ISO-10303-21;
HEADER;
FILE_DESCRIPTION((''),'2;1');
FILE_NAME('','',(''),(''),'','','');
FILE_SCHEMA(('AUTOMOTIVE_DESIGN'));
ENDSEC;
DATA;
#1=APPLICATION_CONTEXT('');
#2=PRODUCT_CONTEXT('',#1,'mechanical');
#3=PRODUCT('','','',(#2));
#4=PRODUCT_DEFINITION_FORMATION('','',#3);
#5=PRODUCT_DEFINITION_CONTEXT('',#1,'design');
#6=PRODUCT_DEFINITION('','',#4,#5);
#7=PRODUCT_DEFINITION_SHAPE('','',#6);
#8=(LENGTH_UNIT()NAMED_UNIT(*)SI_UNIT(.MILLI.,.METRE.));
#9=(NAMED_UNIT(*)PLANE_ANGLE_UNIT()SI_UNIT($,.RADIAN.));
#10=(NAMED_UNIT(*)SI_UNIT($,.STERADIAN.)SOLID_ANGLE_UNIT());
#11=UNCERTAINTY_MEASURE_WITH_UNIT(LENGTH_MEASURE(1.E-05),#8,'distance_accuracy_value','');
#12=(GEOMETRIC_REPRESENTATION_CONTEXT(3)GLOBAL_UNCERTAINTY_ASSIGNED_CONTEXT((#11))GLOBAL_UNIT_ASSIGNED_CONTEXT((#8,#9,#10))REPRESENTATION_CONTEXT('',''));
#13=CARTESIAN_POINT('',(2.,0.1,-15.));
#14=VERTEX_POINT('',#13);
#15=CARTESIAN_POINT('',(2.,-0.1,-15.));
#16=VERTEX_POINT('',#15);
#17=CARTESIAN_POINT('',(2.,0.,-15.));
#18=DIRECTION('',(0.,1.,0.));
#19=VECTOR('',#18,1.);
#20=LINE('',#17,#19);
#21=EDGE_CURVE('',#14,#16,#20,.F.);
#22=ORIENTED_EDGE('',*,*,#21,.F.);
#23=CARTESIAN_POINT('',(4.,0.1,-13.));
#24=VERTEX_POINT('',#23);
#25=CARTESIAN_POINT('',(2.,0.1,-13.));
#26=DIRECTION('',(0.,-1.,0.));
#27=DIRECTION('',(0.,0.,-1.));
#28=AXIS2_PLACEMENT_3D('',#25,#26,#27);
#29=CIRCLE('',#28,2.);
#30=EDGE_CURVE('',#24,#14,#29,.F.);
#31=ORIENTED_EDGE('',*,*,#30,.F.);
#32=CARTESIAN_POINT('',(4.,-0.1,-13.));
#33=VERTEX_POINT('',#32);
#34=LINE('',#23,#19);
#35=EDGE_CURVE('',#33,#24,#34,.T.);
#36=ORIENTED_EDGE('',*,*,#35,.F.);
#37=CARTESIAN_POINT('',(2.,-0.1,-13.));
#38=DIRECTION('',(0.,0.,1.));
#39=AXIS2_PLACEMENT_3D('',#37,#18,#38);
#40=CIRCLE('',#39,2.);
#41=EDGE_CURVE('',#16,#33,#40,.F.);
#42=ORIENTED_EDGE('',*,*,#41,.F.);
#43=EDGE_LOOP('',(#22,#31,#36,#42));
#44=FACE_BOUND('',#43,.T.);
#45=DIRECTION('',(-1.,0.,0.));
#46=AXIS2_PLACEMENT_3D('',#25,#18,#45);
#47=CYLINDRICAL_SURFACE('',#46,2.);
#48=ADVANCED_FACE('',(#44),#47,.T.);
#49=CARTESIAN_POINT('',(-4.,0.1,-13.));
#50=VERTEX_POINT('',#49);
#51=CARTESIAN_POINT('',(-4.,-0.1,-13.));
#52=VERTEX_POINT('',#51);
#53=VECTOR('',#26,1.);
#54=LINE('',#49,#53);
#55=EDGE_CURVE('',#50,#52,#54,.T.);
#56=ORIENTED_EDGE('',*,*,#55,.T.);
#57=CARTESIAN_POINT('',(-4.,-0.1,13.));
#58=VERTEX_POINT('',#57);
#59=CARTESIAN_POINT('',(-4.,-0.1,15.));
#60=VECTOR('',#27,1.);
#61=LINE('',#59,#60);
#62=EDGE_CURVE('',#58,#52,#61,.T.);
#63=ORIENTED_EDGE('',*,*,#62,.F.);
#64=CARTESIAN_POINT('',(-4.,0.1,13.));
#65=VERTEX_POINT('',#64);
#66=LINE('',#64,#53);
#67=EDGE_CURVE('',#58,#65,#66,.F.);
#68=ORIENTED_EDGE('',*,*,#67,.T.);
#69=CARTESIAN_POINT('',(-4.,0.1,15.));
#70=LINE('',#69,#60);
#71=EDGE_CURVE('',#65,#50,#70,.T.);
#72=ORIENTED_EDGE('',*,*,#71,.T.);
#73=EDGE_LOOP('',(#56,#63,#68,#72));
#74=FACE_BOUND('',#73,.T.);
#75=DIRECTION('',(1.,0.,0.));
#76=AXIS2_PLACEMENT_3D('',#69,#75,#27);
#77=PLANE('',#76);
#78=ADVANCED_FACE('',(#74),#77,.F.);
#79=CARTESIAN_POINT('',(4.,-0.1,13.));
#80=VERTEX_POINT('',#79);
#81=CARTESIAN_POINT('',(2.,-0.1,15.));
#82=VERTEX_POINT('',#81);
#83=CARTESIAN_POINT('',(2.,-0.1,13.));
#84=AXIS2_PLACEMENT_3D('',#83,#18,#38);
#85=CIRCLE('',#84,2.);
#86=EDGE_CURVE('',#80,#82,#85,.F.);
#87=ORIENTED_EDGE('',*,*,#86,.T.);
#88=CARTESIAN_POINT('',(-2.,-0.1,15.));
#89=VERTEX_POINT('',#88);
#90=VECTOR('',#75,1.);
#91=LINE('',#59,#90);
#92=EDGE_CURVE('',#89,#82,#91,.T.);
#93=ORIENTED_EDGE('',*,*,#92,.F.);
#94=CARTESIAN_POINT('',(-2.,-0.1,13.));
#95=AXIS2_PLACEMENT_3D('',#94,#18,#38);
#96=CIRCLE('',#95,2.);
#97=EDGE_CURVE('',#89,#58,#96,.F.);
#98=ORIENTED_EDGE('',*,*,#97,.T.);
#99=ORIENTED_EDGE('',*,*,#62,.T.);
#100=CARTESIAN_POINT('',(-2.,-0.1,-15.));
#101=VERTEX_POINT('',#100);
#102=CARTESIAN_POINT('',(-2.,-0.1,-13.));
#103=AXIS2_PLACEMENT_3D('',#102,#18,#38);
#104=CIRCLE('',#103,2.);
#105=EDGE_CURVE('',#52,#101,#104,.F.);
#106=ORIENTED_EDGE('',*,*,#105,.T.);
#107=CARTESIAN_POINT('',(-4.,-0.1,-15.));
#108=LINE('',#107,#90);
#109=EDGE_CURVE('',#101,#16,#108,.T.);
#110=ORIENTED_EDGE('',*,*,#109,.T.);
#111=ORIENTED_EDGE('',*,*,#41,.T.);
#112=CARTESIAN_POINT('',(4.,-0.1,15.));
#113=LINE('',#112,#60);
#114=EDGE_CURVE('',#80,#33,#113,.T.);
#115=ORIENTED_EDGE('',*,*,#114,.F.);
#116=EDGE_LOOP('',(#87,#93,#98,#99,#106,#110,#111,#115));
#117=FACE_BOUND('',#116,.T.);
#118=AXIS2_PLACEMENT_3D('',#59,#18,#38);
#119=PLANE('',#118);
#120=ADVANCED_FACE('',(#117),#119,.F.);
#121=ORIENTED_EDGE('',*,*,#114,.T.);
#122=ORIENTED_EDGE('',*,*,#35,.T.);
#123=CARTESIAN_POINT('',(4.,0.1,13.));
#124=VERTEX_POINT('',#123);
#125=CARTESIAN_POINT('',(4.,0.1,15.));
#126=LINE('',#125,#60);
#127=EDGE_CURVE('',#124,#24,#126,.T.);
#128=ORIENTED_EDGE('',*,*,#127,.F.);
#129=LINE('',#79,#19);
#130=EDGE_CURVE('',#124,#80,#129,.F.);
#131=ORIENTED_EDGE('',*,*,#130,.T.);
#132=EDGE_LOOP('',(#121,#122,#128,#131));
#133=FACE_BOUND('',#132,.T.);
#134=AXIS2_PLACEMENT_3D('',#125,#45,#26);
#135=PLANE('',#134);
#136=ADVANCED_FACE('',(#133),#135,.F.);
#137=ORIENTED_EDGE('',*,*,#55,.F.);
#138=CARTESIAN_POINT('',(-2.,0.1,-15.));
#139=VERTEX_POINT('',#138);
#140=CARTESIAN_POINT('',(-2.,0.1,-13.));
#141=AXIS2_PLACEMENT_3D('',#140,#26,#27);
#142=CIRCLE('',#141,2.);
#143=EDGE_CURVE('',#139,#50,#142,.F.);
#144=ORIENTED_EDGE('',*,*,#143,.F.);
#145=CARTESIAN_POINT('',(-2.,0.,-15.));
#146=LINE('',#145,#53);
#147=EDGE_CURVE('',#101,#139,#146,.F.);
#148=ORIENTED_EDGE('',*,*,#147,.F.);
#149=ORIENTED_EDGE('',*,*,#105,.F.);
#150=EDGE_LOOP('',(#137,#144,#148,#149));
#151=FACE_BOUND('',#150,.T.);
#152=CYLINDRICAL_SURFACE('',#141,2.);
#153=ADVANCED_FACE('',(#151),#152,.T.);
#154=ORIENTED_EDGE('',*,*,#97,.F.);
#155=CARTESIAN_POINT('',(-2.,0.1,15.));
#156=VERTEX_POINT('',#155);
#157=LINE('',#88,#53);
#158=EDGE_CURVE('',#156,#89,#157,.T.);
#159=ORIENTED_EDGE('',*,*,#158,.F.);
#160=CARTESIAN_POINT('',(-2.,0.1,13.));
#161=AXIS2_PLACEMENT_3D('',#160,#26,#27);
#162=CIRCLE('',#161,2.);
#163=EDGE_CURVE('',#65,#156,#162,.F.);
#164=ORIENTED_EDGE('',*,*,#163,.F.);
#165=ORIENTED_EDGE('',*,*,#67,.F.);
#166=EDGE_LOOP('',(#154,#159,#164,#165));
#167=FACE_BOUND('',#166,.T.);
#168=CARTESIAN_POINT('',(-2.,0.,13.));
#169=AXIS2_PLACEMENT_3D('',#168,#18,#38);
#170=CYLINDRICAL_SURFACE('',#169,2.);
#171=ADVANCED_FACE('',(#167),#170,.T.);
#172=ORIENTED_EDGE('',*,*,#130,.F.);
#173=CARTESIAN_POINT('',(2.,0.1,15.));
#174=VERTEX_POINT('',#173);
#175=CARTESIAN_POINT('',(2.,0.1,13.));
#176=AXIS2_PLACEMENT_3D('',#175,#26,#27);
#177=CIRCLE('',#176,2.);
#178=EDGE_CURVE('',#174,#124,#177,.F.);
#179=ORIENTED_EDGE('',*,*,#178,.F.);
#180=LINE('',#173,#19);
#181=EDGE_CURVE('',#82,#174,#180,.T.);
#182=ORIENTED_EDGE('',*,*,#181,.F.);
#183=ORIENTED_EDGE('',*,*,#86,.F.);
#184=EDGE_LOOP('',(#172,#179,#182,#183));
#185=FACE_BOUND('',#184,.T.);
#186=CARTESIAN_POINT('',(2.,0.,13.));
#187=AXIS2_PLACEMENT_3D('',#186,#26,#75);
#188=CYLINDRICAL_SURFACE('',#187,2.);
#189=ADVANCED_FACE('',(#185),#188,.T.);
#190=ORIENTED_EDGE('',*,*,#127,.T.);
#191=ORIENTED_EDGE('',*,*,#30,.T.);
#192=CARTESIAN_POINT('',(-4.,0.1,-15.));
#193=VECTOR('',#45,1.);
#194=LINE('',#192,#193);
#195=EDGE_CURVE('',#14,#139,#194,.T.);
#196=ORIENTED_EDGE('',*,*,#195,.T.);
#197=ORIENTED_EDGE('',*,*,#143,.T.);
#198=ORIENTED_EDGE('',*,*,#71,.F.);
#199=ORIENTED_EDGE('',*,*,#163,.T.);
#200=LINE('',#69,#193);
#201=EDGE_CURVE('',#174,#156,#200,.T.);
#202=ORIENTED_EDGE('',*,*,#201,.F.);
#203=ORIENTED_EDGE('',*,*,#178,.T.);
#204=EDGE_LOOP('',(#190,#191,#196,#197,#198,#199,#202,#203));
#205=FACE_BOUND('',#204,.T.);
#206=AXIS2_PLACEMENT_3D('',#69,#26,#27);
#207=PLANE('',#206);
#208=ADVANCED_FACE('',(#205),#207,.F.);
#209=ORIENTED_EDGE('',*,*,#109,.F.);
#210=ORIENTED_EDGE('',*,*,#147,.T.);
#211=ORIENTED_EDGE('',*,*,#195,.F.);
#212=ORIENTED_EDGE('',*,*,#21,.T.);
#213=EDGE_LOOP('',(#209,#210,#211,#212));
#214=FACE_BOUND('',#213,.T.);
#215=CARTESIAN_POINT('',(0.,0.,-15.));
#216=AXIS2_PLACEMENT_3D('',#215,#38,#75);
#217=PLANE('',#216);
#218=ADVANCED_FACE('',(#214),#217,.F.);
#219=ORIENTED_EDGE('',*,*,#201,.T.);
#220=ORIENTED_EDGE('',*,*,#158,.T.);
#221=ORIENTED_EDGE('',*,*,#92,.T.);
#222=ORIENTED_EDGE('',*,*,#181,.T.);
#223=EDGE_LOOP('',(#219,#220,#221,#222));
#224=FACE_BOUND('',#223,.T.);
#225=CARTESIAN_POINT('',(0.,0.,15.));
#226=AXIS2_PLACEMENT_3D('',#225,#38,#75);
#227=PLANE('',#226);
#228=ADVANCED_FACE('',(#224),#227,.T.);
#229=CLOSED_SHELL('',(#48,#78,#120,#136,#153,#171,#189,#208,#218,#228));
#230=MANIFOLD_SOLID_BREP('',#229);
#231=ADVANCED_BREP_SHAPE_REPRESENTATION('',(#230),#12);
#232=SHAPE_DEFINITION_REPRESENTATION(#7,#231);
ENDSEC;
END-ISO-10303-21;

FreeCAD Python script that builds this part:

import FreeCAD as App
import Part
import Sketcher
from FreeCAD import Vector


def edges_at(feature, points):
    """Names of the edges that pass closest to the given points."""
    edges = feature.Shape.Edges
    near = lambda p: min(range(len(edges)), key=lambda i: edges[i].distToShape(Part.Vertex(*p))[0])
    return sorted({f"Edge{near(p) + 1}" for p in points})


def add_polygon(sketch, points):
    """Adds a closed chain of lines whose ends are joined by coincident constraints."""
    first, n = sketch.GeometryCount, len(points)
    for a, b in zip(points, points[1:] + points[:1]):
        sketch.addGeometry(Part.LineSegment(App.Vector(*a, 0), App.Vector(*b, 0)), False)
    for i in range(n):
        sketch.addConstraint(Sketcher.Constraint("Coincident", first + i, 2, first + (i + 1) % n, 1))

doc = App.newDocument("Part")
body = doc.addObject("PartDesign::Body", "Body")

sketch1 = body.newObject("Sketcher::SketchObject", "Sketch")
sketch1.AttachmentSupport = (doc.getObject("XY_Plane"), [""])
sketch1.MapMode = "FlatFace"
add_polygon(sketch1, [(-4, 0.1), (-4, -0.1), (4, -0.1), (4, 0.1)])
sketch1.addConstraint([
    Sketcher.Constraint("Vertical", 0),
    Sketcher.Constraint("Horizontal", 1),
    Sketcher.Constraint("Vertical", 2),
    Sketcher.Constraint("Horizontal", 3),
    Sketcher.Constraint("Symmetric", 0, 2, 2, 2, -1, 1),
    Sketcher.Constraint("DistanceX", 1, 1, 1, 2, 8.0),
    Sketcher.Constraint("DistanceY", 0, 2, 0, 1, 0.2),
])
pad1 = body.newObject("PartDesign::Pad", "Pad")
pad1.Profile = sketch1
pad1.Length = 30
pad1.Midplane = True
doc.recompute()

fillet = body.newObject("PartDesign::Fillet", "Fillet")
fillet.Base = (pad1, edges_at(pad1, [
    (4, 0, 15),
    (-4, 0, 15),
    (4, 0, -15),
    (-4, 0, -15),
]))
fillet.Radius = 2

doc.recompute()
